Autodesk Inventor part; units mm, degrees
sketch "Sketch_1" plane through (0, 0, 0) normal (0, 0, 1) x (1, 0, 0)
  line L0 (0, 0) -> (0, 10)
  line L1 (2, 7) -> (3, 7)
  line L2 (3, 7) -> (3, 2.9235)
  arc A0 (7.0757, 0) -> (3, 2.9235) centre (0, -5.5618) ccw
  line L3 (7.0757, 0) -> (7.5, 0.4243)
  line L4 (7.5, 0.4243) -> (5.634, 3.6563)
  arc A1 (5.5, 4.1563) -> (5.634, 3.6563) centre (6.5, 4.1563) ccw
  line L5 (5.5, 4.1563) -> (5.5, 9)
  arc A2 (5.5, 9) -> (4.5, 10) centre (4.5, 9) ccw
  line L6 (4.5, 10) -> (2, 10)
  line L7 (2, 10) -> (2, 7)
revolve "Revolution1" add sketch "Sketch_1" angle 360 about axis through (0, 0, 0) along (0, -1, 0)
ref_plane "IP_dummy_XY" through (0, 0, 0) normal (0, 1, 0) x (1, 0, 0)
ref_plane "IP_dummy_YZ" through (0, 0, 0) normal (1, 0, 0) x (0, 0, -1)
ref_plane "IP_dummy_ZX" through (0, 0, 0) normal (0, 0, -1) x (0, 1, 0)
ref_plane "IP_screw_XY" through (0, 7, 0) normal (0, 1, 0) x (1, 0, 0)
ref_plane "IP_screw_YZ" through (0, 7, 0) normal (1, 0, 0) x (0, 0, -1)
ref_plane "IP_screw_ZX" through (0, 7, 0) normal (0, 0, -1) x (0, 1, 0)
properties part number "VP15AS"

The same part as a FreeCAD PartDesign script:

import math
import FreeCAD as App
import Part
import Sketcher
Q = App.Units.Quantity

doc = App.newDocument("Part")
body = doc.addObject("PartDesign::Body", "Body")

sketch1 = body.newObject("Sketcher::SketchObject", "Sketch")
sketch1.AttachmentSupport = (doc.getObject("XY_Plane"), [""])
sketch1.MapMode = "FlatFace"
sketch1.addGeometry([
    Part.LineSegment(App.Vector(2, 10, 0), App.Vector(2, 7, 0)),
    Part.LineSegment(App.Vector(2, 7, 0), App.Vector(3, 7, 0)),
    Part.LineSegment(App.Vector(3, 7, 0), App.Vector(3, 2.9235, 0)),
    Part.ArcOfCircle(Part.Circle(App.Vector(0, -5.5618, 0), App.Vector(0, 0, 1), 8.999953), math.radians(38.168847), math.radians(70.528819)),
    Part.LineSegment(App.Vector(7.0757, 0, 0), App.Vector(7.5, 0.4243, 0)),
    Part.LineSegment(App.Vector(7.5, 0.4243, 0), App.Vector(5.634, 3.6563, 0)),
    Part.ArcOfCircle(Part.Circle(App.Vector(6.5, 4.1563, 0), App.Vector(0, 0, 1), 1), math.radians(180), math.radians(210.000728)),
    Part.LineSegment(App.Vector(5.5, 4.1563, 0), App.Vector(5.5, 9, 0)),
    Part.ArcOfCircle(Part.Circle(App.Vector(4.5, 9, 0), App.Vector(0, 0, 1), 1), math.radians(0), math.radians(90)),
    Part.LineSegment(App.Vector(4.5, 10, 0), App.Vector(2, 10, 0)),
], False)
sketch1.addConstraint([
    Sketcher.Constraint("Coincident", 0, 2, 1, 1),
    Sketcher.Constraint("Coincident", 1, 2, 2, 1),
    Sketcher.Constraint("Coincident", 2, 2, 3, 2),
    Sketcher.Constraint("Coincident", 3, 1, 4, 1),
    Sketcher.Constraint("Coincident", 4, 2, 5, 1),
    Sketcher.Constraint("Tangent", 5, 2, 6, 2),
    Sketcher.Constraint("Tangent", 6, 1, 7, 1),
    Sketcher.Constraint("Tangent", 7, 2, 8, 1),
    Sketcher.Constraint("Tangent", 8, 2, 9, 1),
    Sketcher.Constraint("Coincident", 9, 2, 0, 1),
    Sketcher.Constraint("Vertical", 0),
    Sketcher.Constraint("Horizontal", 1),
    Sketcher.Constraint("Vertical", 2),
    Sketcher.Constraint("Vertical", 7),
    Sketcher.Constraint("Horizontal", 9),
    Sketcher.Constraint("Equal", 6, 8),
    Sketcher.Constraint("PointOnObject", 3, 3, -2),
    Sketcher.Constraint("PointOnObject", 3, 1, -1),
    Sketcher.Constraint("Radius", 3, Q("9 mm")),
    Sketcher.Constraint("Radius", 6, Q("1 mm")),
    Sketcher.Constraint("DistanceX", 1, 1, 1, 2, Q("1 mm")),
    Sketcher.Constraint("DistanceY", 0, 2, 0, 1, Q("3 mm")),
    Sketcher.Constraint("Angle", 4, Q("45 deg")),
    Sketcher.Constraint("Angle", 5, Q("120 deg")),
    Sketcher.Constraint("DistanceX", 9, 2, 9, 1, Q("2.5 mm")),
    Sketcher.Constraint("DistanceY", -1, 1, 8, 3, Q("9 mm")),
    Sketcher.Constraint("DistanceX", -1, 1, 0, 2, Q("2 mm")),
    Sketcher.Constraint("DistanceX", 6, 3, 4, 2, Q("1 mm")),
    Sketcher.Constraint("Distance", 4, Q("0.6 mm")),
])
revolution = body.newObject("PartDesign::Revolution", "Revolution")
revolution.Profile = sketch1
revolution.ReferenceAxis = (sketch1, ["V_Axis"])
revolution.Angle = 360

doc.recompute()
